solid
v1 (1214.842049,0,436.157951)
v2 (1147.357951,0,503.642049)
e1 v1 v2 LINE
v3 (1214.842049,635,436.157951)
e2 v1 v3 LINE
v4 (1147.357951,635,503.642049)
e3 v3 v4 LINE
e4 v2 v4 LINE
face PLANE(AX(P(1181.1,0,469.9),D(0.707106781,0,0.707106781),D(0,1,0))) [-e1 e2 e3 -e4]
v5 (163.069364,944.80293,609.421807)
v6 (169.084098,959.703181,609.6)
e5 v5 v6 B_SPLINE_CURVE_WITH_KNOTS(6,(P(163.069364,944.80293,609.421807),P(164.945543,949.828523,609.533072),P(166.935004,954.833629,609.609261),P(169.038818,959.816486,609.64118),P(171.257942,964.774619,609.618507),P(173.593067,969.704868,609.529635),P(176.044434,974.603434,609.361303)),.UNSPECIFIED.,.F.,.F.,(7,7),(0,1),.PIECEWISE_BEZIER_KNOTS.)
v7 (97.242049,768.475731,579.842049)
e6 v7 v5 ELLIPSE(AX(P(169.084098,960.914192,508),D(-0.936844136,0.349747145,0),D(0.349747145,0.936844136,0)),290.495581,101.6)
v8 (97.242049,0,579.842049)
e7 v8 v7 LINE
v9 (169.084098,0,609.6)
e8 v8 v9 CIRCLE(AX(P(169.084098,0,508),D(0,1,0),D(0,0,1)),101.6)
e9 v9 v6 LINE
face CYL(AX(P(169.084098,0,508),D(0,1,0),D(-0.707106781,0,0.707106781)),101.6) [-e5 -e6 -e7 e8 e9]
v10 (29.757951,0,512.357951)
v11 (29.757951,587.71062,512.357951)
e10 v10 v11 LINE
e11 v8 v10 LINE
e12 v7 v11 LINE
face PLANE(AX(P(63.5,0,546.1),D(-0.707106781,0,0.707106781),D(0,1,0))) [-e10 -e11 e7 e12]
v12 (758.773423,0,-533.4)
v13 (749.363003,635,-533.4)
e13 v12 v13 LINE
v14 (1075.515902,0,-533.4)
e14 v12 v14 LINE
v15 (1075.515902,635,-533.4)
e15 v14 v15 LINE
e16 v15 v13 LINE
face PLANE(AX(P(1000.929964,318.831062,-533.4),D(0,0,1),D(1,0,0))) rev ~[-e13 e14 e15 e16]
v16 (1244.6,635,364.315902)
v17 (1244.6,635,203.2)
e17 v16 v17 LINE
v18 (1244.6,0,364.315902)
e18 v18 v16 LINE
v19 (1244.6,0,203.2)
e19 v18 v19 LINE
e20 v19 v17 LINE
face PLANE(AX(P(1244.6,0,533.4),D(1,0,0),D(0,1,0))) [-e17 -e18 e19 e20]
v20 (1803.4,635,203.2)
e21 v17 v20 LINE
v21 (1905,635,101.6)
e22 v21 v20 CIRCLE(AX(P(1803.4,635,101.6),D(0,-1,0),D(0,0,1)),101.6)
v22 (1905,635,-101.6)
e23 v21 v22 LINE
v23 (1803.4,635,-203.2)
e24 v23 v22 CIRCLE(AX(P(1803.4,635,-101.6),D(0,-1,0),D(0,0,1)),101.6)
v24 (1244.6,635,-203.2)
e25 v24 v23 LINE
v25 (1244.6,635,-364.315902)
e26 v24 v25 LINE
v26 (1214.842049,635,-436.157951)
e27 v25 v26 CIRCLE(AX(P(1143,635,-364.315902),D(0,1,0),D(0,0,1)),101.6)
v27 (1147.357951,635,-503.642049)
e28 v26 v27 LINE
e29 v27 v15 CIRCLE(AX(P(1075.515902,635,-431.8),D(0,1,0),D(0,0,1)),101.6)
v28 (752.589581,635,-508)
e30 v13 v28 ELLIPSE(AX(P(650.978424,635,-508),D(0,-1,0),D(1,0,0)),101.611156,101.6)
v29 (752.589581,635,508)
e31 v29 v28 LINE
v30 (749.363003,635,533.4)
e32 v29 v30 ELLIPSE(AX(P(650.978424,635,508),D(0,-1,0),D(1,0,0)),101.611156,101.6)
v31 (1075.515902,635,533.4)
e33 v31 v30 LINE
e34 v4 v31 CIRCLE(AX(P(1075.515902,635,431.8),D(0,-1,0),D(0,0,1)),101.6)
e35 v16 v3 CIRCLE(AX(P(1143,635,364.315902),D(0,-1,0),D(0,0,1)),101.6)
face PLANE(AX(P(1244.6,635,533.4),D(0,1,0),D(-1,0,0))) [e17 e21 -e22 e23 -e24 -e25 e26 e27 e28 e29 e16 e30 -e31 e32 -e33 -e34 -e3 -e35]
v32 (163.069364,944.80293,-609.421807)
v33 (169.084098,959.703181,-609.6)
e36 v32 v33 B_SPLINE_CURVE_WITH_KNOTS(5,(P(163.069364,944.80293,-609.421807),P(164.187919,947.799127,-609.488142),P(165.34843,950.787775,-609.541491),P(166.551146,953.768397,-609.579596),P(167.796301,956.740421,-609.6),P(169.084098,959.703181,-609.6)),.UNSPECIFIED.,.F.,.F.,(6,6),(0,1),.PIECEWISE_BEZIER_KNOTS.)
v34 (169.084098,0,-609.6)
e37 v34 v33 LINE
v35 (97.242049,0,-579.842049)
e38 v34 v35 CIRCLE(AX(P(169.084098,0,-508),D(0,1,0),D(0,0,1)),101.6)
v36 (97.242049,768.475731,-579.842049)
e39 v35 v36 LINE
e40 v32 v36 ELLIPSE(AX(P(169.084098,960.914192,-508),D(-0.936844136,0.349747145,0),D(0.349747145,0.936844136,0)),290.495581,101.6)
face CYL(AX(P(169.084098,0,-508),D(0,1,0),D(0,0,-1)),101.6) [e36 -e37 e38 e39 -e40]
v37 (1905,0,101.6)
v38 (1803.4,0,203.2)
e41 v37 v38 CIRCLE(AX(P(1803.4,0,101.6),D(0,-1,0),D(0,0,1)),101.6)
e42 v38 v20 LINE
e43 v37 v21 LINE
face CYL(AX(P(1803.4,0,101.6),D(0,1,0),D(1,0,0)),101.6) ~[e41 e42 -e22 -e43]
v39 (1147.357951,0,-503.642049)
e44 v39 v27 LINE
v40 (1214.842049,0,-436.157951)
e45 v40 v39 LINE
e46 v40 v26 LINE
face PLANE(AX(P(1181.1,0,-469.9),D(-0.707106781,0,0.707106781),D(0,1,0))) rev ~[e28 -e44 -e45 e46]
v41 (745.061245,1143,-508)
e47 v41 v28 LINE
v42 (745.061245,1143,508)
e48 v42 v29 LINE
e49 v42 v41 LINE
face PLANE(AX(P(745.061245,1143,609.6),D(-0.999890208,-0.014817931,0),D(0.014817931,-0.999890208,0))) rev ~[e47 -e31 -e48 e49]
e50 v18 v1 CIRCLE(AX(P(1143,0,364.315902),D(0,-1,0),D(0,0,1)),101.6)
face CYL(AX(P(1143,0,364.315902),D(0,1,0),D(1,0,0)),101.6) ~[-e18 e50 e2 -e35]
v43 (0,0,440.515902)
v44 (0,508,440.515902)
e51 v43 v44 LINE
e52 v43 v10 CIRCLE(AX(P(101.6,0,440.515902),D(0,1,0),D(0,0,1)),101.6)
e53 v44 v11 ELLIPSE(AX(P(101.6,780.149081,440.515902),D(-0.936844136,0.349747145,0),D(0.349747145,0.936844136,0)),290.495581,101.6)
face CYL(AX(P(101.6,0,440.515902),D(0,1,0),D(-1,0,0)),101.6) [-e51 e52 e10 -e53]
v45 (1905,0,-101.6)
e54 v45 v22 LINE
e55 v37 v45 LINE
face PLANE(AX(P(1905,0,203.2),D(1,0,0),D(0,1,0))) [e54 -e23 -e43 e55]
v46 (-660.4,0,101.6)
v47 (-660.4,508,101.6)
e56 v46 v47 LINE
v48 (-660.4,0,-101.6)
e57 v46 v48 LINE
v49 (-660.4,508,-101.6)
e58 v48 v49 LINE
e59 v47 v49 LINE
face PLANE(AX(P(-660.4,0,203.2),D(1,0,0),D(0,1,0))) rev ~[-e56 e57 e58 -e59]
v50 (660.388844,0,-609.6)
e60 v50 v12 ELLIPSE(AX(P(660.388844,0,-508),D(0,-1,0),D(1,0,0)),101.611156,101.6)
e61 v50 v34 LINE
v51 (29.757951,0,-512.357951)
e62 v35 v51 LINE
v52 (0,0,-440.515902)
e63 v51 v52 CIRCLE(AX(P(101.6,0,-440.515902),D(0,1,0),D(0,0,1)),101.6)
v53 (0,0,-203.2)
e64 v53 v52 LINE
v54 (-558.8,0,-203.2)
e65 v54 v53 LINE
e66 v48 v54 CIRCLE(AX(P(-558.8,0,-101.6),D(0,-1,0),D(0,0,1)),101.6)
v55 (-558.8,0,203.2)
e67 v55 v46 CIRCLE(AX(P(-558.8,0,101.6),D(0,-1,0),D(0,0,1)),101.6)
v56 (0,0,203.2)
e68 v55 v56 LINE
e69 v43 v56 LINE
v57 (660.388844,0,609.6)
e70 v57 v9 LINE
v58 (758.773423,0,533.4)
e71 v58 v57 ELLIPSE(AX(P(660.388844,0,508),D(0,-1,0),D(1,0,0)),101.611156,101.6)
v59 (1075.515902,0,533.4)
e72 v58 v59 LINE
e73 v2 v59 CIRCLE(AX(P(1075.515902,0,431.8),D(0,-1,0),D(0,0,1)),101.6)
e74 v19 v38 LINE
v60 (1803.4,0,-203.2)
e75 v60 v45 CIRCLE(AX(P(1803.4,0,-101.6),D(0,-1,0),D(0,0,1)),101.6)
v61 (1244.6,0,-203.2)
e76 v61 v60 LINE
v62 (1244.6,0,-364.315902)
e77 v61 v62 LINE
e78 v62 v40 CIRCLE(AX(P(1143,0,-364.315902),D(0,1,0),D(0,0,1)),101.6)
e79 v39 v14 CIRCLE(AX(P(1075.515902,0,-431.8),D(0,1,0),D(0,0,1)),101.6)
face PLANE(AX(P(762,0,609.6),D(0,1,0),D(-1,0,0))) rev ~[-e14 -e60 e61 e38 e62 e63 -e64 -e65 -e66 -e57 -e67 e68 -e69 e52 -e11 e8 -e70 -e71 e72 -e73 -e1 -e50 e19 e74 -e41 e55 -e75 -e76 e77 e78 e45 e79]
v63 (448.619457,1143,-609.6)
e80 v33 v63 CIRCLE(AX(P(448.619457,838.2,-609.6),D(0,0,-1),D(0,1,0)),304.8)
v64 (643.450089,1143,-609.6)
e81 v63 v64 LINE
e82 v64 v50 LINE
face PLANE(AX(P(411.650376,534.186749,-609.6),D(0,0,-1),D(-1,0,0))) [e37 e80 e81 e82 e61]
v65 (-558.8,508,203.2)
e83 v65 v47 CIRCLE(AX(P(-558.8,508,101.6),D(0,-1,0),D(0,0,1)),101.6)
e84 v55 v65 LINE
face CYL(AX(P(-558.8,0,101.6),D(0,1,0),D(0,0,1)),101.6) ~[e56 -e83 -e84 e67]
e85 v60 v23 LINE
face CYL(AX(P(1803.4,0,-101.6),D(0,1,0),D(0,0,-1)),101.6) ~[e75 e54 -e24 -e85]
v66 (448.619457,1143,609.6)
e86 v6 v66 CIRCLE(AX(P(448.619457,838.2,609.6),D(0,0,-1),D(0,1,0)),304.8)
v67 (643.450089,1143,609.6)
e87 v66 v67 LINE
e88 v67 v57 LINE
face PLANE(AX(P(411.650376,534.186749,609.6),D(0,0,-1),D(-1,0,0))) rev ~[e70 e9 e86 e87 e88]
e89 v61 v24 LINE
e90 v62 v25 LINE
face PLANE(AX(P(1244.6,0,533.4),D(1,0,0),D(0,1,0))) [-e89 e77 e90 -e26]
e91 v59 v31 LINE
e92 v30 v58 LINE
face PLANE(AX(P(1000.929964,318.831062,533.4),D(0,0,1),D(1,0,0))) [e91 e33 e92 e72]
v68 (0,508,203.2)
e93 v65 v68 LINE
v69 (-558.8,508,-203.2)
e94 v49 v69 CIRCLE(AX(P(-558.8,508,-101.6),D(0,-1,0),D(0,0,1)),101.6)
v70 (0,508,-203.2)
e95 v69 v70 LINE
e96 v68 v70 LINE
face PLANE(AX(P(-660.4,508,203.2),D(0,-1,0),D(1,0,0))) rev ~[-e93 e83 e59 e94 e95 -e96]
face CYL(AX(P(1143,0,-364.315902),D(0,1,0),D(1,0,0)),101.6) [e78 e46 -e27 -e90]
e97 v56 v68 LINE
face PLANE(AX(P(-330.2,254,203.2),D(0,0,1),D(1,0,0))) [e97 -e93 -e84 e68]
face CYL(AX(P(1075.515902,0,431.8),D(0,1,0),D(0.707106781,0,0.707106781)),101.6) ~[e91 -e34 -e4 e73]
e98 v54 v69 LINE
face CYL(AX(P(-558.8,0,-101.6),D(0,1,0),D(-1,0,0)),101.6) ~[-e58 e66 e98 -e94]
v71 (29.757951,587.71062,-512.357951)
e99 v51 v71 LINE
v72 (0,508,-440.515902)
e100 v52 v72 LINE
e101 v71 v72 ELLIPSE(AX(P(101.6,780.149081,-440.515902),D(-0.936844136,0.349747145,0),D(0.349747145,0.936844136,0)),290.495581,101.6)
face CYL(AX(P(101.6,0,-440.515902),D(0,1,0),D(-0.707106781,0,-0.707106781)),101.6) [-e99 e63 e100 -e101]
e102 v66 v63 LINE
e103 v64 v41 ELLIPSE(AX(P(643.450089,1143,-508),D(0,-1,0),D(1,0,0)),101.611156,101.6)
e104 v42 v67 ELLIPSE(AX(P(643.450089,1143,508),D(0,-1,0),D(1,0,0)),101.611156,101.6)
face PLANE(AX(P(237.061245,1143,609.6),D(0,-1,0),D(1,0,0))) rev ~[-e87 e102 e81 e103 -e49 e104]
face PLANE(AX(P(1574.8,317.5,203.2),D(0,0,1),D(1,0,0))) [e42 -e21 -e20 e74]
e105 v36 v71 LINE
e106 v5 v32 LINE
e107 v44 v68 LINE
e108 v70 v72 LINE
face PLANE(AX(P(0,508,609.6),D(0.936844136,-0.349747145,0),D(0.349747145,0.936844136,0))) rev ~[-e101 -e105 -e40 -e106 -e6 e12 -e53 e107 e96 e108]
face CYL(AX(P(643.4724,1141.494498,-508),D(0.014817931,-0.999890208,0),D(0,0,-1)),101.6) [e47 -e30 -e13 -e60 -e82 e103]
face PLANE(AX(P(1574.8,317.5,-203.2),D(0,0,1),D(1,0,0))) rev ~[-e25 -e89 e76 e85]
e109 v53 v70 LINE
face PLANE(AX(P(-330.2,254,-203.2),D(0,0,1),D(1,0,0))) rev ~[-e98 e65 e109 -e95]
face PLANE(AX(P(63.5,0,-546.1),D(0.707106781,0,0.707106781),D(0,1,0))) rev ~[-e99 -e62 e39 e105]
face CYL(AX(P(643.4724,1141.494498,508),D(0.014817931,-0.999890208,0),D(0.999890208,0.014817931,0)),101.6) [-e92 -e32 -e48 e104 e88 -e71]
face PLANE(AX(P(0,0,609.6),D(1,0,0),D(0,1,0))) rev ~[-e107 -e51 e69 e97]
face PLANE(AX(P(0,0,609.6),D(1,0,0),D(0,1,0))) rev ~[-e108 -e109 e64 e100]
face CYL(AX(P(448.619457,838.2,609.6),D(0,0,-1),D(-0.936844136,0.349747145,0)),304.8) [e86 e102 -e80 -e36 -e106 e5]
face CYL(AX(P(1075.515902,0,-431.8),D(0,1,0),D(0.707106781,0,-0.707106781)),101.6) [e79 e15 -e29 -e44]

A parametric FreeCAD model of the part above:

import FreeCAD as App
import Part
import Sketcher
Q = App.Units.Quantity


def edges_at(feature, points):
    """Names of the edges that pass closest to the given points."""
    edges = feature.Shape.Edges
    near = lambda p: min(range(len(edges)), key=lambda i: edges[i].distToShape(Part.Vertex(*p))[0])
    return sorted({f"Edge{near(p) + 1}" for p in points})

doc = App.newDocument("Part")
body = doc.addObject("PartDesign::Body", "Body")

sketch1 = body.newObject("Sketcher::SketchObject", "Sketch")
sketch1.AttachmentSupport = (doc.getObject("XY_Plane"), [""])
sketch1.MapMode = "FlatFace"
sketch1.AttachmentOffset = App.Placement(App.Vector(0, 0, 8 * 25.4), App.Rotation())
sketch1.addGeometry(Part.LineSegment(App.Vector(-660, 508, 0), App.Vector(-660, 0, 0)), False)
sketch1.addGeometry(Part.LineSegment(App.Vector(-660, 0, 0), App.Vector(0, 0, 0)), False)
sketch1.addGeometry(Part.LineSegment(App.Vector(0, 0, 0), App.Vector(0, 508, 0)), False)
sketch1.addGeometry(Part.LineSegment(App.Vector(0, 508, 0), App.Vector(-660, 508, 0)), False)
sketch1.addConstraint(Sketcher.Constraint("Coincident", 0, 2, 1, 1))
sketch1.addConstraint(Sketcher.Constraint("Coincident", 1, 2, 2, 1))
sketch1.addConstraint(Sketcher.Constraint("Coincident", 2, 2, 3, 1))
sketch1.addConstraint(Sketcher.Constraint("Coincident", 3, 2, 0, 1))
sketch1.addConstraint(Sketcher.Constraint("Vertical", 0))
sketch1.addConstraint(Sketcher.Constraint("Horizontal", 1))
sketch1.addConstraint(Sketcher.Constraint("Vertical", 2))
sketch1.addConstraint(Sketcher.Constraint("Horizontal", 3))
sketch1.addConstraint(Sketcher.Constraint("Coincident", 1, 2, -1, 1))
sketch1.addConstraint(Sketcher.Constraint("DistanceX", 1, 1, 1, 2, Q("26 in")))
sketch1.addConstraint(Sketcher.Constraint("DistanceY", 0, 2, 0, 1, Q("20 in")))
pad1 = body.newObject("PartDesign::Pad", "Pad")
pad1.Profile = sketch1
pad1.Length = Q("16 in")
pad1.Reversed = True

sketch2 = body.newObject("Sketcher::SketchObject", "Sketch001")
sketch2.AttachmentSupport = (doc.getObject("XY_Plane"), [""])
sketch2.MapMode = "FlatFace"
sketch2.AttachmentOffset = App.Placement(App.Vector(0, 0, 24 * 25.4), App.Rotation())
sketch2.addGeometry(Part.LineSegment(App.Vector(0, 508, 0), App.Vector(0, 0, 0)), False)
sketch2.addGeometry(Part.LineSegment(App.Vector(0, 0, 0), App.Vector(762, 0, 0)), False)
sketch2.addGeometry(Part.LineSegment(App.Vector(762, 0, 0), App.Vector(745, 1143, 0)), False)
sketch2.addGeometry(Part.LineSegment(App.Vector(745, 1143, 0), App.Vector(237, 1143, 0)), False)
sketch2.addGeometry(Part.LineSegment(App.Vector(237, 1143, 0), App.Vector(0, 508, 0)), False)
sketch2.addConstraint(Sketcher.Constraint("Coincident", 0, 2, 1, 1))
sketch2.addConstraint(Sketcher.Constraint("Coincident", 1, 2, 2, 1))
sketch2.addConstraint(Sketcher.Constraint("Coincident", 2, 2, 3, 1))
sketch2.addConstraint(Sketcher.Constraint("Coincident", 3, 2, 4, 1))
sketch2.addConstraint(Sketcher.Constraint("Coincident", 4, 2, 0, 1))
sketch2.addConstraint(Sketcher.Constraint("Vertical", 0))
sketch2.addConstraint(Sketcher.Constraint("Horizontal", 1))
sketch2.addConstraint(Sketcher.Constraint("Horizontal", 3))
sketch2.addConstraint(Sketcher.Constraint("Coincident", 0, 2, -1, 1))
sketch2.addConstraint(Sketcher.Constraint("Equal", 3, 0))
sketch2.addConstraint(Sketcher.Constraint("DistanceX", 1, 1, 1, 2, Q("30 in")))
sketch2.addConstraint(Sketcher.Constraint("DistanceX", 3, 2, 3, 1, Q("20 in")))
sketch2.addConstraint(Sketcher.Constraint("DistanceY", -1, 1, 2, 2, Q("45 in")))
sketch2.addConstraint(Sketcher.Constraint("Distance", 4, 677.80752))
pad2 = body.newObject("PartDesign::Pad", "Pad001")
pad2.Profile = sketch2
pad2.Length = Q("48 in")
pad2.Reversed = True

sketch3 = body.newObject("Sketcher::SketchObject", "Sketch002")
sketch3.AttachmentSupport = (doc.getObject("XY_Plane"), [""])
sketch3.MapMode = "FlatFace"
sketch3.AttachmentOffset = App.Placement(App.Vector(0, 0, 21 * 25.4), App.Rotation())
sketch3.addGeometry(Part.LineSegment(App.Vector(1245, 635, 0), App.Vector(753, 635, 0)), False)
sketch3.addGeometry(Part.LineSegment(App.Vector(753, 635, 0), App.Vector(762, 0, 0)), False)
sketch3.addGeometry(Part.LineSegment(App.Vector(762, 0, 0), App.Vector(1245, 0, 0)), False)
sketch3.addGeometry(Part.LineSegment(App.Vector(1245, 0, 0), App.Vector(1245, 635, 0)), False)
sketch3.addConstraint(Sketcher.Constraint("Coincident", 0, 2, 1, 1))
sketch3.addConstraint(Sketcher.Constraint("Coincident", 1, 2, 2, 1))
sketch3.addConstraint(Sketcher.Constraint("Coincident", 2, 2, 3, 1))
sketch3.addConstraint(Sketcher.Constraint("Coincident", 3, 2, 0, 1))
sketch3.addConstraint(Sketcher.Constraint("Horizontal", 0))
sketch3.addConstraint(Sketcher.Constraint("Horizontal", 2))
sketch3.addConstraint(Sketcher.Constraint("Vertical", 3))
sketch3.addConstraint(Sketcher.Constraint("PointOnObject", 1, 2, -1))
sketch3.addConstraint(Sketcher.Constraint("DistanceX", 2, 1, 2, 2, Q("19 in")))
sketch3.addConstraint(Sketcher.Constraint("DistanceY", 3, 1, 3, 2, Q("25 in")))
sketch3.addConstraint(Sketcher.Constraint("DistanceX", -1, 1, 1, 2, Q("30 in")))
sketch3.addConstraint(Sketcher.Constraint("DistanceX", 0, 2, 0, 1, 492.010419))
pad3 = body.newObject("PartDesign::Pad", "Pad002")
pad3.Profile = sketch3
pad3.Length = Q("42 in")
pad3.Reversed = True

sketch4 = body.newObject("Sketcher::SketchObject", "Sketch003")
sketch4.AttachmentSupport = (doc.getObject("XY_Plane"), [""])
sketch4.MapMode = "FlatFace"
sketch4.AttachmentOffset = App.Placement(App.Vector(0, 0, 8 * 25.4), App.Rotation())
sketch4.addGeometry(Part.LineSegment(App.Vector(1245, 635, 0), App.Vector(1245, 0, 0)), False)
sketch4.addGeometry(Part.LineSegment(App.Vector(1245, 0, 0), App.Vector(1905, 0, 0)), False)
sketch4.addGeometry(Part.LineSegment(App.Vector(1905, 0, 0), App.Vector(1905, 635, 0)), False)
sketch4.addGeometry(Part.LineSegment(App.Vector(1905, 635, 0), App.Vector(1245, 635, 0)), False)
sketch4.addConstraint(Sketcher.Constraint("Coincident", 0, 2, 1, 1))
sketch4.addConstraint(Sketcher.Constraint("Coincident", 1, 2, 2, 1))
sketch4.addConstraint(Sketcher.Constraint("Coincident", 2, 2, 3, 1))
sketch4.addConstraint(Sketcher.Constraint("Coincident", 3, 2, 0, 1))
sketch4.addConstraint(Sketcher.Constraint("Vertical", 0))
sketch4.addConstraint(Sketcher.Constraint("Horizontal", 1))
sketch4.addConstraint(Sketcher.Constraint("Vertical", 2))
sketch4.addConstraint(Sketcher.Constraint("Horizontal", 3))
sketch4.addConstraint(Sketcher.Constraint("PointOnObject", 0, 2, -1))
sketch4.addConstraint(Sketcher.Constraint("DistanceX", 1, 1, 1, 2, Q("26 in")))
sketch4.addConstraint(Sketcher.Constraint("DistanceY", 0, 2, 0, 1, Q("25 in")))
sketch4.addConstraint(Sketcher.Constraint("DistanceX", -1, 1, 0, 2, Q("49 in")))
pad4 = body.newObject("PartDesign::Pad", "Pad003")
pad4.Profile = sketch4
pad4.Length = Q("16 in")
pad4.Reversed = True
doc.recompute()

fillet = body.newObject("PartDesign::Fillet", "Fillet")
fillet.Base = (pad4, edges_at(pad4, [(-660.4, 254, -203.2), (-660.4, 254, 203.2)]))
fillet.Radius = Q("4 in")
doc.recompute()

fillet2 = body.newObject("PartDesign::Fillet", "Fillet001")
fillet2.Base = (fillet, edges_at(fillet, [(1905, 317.5, -203.2), (1905, 317.5, 203.2)]))
fillet2.Radius = Q("4 in")
doc.recompute()

chamfer = body.newObject("PartDesign::Chamfer", "Chamfer")
chamfer.Base = (fillet2, edges_at(fillet2, [(1244.6, 317.5, -533.4), (1244.6, 317.5, 533.4)]))
chamfer.Size = Q("5 in")
doc.recompute()

fillet3 = body.newObject("PartDesign::Fillet", "Fillet002")
fillet3.Base = (chamfer, edges_at(chamfer, [
    (1244.6, 317.5, -406.4),
    (1117.6, 317.5, -533.4),
    (1117.6, 317.5, 533.4),
    (1244.6, 317.5, 406.4),
]))
fillet3.Radius = Q("4 in")
doc.recompute()

chamfer2 = body.newObject("PartDesign::Chamfer", "Chamfer001")
chamfer2.Base = (fillet3, edges_at(fillet3, [(0, 254, -609.6), (0, 254, 609.6)]))
chamfer2.Size = Q("5 in")
doc.recompute()

fillet4 = body.newObject("PartDesign::Fillet", "Fillet003")
fillet4.Base = (chamfer2, edges_at(chamfer2, [
    (753.531, 571.5, 609.6),
    (753.531, 571.5, -609.6),
    (127, 424.093, -609.6),
    (0, 254, -482.6),
    (127, 424.093, 609.6),
    (0, 254, 482.6),
]))
fillet4.Radius = Q("4 in")
doc.recompute()

fillet5 = body.newObject("PartDesign::Fillet", "Fillet004")
fillet5.Base = (fillet4, edges_at(fillet4, [(237.061, 1143, 0)]))
fillet5.Radius = Q("12 in")

doc.recompute()
